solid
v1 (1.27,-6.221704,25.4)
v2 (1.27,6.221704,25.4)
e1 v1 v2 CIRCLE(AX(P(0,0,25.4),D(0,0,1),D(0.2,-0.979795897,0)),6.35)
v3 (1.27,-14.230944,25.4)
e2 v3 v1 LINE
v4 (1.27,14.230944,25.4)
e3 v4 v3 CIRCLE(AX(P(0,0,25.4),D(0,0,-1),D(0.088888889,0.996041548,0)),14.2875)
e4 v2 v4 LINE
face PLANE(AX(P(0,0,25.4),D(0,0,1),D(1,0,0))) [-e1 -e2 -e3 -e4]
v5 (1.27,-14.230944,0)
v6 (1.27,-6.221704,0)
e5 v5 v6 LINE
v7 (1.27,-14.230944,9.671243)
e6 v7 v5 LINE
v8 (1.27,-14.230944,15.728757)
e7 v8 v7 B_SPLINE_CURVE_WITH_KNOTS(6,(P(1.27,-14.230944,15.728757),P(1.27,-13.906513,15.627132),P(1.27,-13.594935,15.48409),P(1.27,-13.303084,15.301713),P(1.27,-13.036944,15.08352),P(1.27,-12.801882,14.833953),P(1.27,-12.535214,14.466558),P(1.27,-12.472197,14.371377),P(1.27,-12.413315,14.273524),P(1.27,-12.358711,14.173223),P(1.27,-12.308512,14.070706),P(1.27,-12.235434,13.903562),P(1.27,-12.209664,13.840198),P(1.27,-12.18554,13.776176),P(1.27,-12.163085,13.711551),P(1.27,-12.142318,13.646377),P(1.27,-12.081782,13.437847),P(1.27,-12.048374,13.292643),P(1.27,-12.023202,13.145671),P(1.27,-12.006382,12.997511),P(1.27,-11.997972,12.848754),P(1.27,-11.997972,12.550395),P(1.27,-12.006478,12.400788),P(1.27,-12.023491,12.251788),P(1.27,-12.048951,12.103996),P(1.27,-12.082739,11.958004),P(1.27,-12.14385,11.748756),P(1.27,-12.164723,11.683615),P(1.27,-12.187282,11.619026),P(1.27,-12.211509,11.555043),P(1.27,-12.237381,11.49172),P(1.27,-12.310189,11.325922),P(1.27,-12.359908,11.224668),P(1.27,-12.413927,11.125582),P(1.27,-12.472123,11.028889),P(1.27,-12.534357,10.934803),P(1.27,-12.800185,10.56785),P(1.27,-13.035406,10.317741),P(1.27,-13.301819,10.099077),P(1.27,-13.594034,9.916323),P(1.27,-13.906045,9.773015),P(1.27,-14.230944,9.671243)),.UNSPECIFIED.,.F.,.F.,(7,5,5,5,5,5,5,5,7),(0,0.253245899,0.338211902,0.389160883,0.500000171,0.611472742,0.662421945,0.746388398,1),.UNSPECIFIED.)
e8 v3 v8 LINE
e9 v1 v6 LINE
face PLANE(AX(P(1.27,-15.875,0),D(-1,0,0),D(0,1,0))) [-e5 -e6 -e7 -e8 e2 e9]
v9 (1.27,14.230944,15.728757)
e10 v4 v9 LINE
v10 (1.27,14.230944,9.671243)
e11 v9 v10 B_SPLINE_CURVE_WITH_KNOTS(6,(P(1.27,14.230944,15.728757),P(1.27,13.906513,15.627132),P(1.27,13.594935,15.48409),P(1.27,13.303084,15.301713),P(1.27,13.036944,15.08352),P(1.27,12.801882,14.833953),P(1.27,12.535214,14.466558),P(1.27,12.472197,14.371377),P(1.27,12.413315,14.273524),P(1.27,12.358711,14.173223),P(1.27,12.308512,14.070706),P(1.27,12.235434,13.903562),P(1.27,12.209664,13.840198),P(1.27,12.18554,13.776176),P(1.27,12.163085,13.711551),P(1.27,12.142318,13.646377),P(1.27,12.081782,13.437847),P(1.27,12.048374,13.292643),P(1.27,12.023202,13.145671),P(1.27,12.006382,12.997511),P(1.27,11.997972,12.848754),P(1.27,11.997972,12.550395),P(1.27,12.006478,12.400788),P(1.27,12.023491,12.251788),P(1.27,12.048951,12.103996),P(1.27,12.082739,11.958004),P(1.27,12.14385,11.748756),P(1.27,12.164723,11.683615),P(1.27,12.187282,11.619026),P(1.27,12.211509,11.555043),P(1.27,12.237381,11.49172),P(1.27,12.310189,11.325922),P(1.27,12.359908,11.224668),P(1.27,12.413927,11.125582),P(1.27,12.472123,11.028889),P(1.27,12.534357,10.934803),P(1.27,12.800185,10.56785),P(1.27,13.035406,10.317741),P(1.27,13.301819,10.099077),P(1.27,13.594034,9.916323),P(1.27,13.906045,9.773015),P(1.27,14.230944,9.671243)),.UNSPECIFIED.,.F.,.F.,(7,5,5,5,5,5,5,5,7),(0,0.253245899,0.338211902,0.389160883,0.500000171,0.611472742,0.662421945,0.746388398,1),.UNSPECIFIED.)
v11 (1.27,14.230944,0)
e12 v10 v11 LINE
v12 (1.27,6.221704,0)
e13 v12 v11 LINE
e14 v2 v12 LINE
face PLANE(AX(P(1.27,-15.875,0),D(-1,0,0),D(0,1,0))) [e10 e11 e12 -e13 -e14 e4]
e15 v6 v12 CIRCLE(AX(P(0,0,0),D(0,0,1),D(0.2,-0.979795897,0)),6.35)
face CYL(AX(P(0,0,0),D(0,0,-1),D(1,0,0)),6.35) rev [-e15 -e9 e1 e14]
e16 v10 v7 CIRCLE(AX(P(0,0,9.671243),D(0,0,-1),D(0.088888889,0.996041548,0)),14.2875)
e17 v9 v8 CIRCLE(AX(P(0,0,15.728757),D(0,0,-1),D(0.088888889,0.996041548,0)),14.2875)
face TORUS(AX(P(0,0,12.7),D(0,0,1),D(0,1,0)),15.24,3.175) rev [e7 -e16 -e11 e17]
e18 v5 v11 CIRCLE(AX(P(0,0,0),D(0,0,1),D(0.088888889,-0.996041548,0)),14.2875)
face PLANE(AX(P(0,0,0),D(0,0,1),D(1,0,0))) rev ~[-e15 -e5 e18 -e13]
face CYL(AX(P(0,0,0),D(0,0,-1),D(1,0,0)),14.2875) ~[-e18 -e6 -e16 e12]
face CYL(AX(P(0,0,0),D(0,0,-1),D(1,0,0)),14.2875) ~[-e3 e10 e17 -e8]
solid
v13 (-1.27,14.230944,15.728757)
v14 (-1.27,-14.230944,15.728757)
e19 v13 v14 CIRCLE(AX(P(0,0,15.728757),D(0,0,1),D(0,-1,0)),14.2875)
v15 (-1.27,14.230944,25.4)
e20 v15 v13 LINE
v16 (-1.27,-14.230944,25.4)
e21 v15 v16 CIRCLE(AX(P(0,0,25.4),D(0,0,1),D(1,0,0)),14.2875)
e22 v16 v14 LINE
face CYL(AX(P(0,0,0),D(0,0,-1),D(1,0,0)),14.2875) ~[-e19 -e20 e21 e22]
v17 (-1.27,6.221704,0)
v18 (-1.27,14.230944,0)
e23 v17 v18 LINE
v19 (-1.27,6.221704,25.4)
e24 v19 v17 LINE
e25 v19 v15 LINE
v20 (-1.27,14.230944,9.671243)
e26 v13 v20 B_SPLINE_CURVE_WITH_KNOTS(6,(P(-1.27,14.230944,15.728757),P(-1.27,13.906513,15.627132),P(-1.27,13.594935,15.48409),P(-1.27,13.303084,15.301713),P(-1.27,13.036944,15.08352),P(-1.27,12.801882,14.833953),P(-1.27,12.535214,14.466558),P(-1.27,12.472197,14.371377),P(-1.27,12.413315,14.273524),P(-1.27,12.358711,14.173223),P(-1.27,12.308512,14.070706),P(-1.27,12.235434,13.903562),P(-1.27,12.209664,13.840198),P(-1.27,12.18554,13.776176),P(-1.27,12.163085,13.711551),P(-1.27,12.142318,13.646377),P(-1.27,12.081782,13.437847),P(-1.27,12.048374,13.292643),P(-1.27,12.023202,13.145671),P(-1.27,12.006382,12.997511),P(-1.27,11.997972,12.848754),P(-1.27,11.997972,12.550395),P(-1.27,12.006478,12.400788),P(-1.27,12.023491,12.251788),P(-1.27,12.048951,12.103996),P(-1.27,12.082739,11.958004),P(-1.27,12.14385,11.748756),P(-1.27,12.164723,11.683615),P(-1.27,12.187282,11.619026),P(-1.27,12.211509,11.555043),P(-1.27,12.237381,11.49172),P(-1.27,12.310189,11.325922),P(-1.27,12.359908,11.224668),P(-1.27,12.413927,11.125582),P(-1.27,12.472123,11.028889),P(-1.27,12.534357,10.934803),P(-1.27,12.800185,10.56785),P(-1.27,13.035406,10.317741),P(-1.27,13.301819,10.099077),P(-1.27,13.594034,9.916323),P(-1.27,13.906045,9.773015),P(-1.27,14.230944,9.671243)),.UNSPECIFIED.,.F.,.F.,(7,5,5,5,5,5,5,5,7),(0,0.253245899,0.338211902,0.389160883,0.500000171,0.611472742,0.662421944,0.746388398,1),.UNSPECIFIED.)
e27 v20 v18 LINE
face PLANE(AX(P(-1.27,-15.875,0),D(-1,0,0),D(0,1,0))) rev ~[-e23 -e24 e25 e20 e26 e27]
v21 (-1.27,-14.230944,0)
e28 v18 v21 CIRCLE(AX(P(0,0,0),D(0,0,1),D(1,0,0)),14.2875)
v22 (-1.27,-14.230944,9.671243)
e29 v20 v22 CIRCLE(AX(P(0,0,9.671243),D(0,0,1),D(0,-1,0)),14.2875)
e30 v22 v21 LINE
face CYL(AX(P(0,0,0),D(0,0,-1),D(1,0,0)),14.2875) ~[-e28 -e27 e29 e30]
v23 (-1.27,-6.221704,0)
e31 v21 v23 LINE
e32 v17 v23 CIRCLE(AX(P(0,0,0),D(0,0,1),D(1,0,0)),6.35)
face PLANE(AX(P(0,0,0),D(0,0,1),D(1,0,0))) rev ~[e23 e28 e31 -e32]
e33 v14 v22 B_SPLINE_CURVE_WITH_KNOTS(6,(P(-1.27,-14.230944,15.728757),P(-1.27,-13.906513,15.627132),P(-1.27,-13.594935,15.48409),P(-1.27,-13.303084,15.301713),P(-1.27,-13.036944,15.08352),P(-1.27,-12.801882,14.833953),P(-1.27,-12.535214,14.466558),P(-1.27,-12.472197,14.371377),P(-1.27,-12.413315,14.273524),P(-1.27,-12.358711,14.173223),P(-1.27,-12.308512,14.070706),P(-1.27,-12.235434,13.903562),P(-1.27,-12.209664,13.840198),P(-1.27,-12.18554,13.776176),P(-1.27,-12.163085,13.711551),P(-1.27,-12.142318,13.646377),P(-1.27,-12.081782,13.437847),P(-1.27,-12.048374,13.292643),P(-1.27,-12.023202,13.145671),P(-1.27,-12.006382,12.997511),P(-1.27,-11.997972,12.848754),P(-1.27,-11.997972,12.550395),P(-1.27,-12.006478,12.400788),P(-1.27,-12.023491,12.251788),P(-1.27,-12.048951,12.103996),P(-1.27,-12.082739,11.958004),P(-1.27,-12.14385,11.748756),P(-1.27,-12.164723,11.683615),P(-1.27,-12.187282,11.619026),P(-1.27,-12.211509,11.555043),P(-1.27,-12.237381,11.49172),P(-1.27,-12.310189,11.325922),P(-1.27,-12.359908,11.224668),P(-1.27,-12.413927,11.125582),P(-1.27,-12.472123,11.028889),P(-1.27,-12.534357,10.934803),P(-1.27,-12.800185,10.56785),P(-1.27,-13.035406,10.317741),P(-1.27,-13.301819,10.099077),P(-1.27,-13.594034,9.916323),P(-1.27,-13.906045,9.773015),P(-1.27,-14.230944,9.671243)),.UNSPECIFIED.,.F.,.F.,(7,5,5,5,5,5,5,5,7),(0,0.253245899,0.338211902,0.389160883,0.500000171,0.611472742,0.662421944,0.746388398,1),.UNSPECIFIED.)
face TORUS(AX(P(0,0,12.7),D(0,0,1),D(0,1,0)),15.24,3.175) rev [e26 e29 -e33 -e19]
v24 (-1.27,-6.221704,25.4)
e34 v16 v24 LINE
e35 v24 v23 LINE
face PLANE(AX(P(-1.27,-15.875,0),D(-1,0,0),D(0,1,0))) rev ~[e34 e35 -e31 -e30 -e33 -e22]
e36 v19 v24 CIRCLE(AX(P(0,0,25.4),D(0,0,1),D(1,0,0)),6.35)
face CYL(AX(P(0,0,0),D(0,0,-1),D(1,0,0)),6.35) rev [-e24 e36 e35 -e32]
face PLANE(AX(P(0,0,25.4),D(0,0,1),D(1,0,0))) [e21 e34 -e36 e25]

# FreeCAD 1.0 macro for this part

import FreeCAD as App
import Part
import Sketcher

V = App.Vector
Q = App.Units.Quantity

doc = App.newDocument("Part")
body = doc.addObject("PartDesign::Body", "Body")
body.AllowCompound = True

sketch1 = body.newObject("Sketcher::SketchObject", "Sketch")
sketch1.AttachmentSupport = (doc.getObject("XY_Plane"), [""])
sketch1.MapMode = "FlatFace"
sketch1.addGeometry([
    Part.Circle(V(0, 0, 0), V(0, 0, 1), 14),
    Part.Circle(V(0, 0, 0), V(0, 0, 1), 6),
], False)
sketch1.addConstraint([
    Sketcher.Constraint("Coincident", 0, 3, -1, 1),
    Sketcher.Constraint("Coincident", 1, 3, -1, 1),
    Sketcher.Constraint("Diameter", 1, Q("0.5 in")),
    Sketcher.Constraint("Diameter", 0, Q("1.125 in")),
])
pad1 = body.newObject("PartDesign::Pad", "Pad")
pad1.Profile = sketch1
pad1.Length = Q("1 in")

sketch2 = body.newObject("Sketcher::SketchObject", "Sketch001")
sketch2.AttachmentSupport = (doc.getObject("YZ_Plane"), [""])
sketch2.MapMode = "FlatFace"
sketch2.addGeometry(Part.Circle(V(15.2, 12.7, 0), V(0, 0, 1), 3.2), False)
sketch2.addConstraint([
    Sketcher.Constraint("Diameter", 0, Q("0.25 in")),
    Sketcher.Constraint("DistanceX", -1, 1, 0, 3, Q("0.6 in")),
    Sketcher.Constraint("DistanceY", -1, 1, 0, 3, Q("0.5 in")),
])
groove = body.newObject("PartDesign::Groove", "Groove")
groove.Profile = sketch2
groove.ReferenceAxis = (sketch2, ["V_Axis"])
groove.Angle = 360

sketch3 = body.newObject("Sketcher::SketchObject", "Sketch002")
sketch3.AttachmentSupport = (doc.getObject("XY_Plane"), [""])
sketch3.MapMode = "FlatFace"
sketch3.addGeometry([
    Part.LineSegment(V(-1.3, 15.9, 0), V(-1.3, -15.9, 0)),
    Part.LineSegment(V(-1.3, -15.9, 0), V(1.3, -15.9, 0)),
    Part.LineSegment(V(1.3, -15.9, 0), V(1.3, 15.9, 0)),
    Part.LineSegment(V(1.3, 15.9, 0), V(-1.3, 15.9, 0)),
], False)
sketch3.addConstraint([
    Sketcher.Constraint("Coincident", 0, 2, 1, 1),
    Sketcher.Constraint("Coincident", 1, 2, 2, 1),
    Sketcher.Constraint("Coincident", 2, 2, 3, 1),
    Sketcher.Constraint("Coincident", 3, 2, 0, 1),
    Sketcher.Constraint("Vertical", 0),
    Sketcher.Constraint("Horizontal", 1),
    Sketcher.Constraint("Vertical", 2),
    Sketcher.Constraint("Horizontal", 3),
    Sketcher.Constraint("Symmetric", 0, 2, 2, 2, -1, 1),
    Sketcher.Constraint("DistanceX", 1, 1, 1, 2, Q("0.1 in")),
    Sketcher.Constraint("DistanceY", 0, 2, 0, 1, Q("1.25 in")),
])
pocket1 = body.newObject("PartDesign::Pocket", "Pocket")
pocket1.Profile = sketch3
pocket1.Length = Q("1 in")
pocket1.Reversed = True

doc.recompute()
